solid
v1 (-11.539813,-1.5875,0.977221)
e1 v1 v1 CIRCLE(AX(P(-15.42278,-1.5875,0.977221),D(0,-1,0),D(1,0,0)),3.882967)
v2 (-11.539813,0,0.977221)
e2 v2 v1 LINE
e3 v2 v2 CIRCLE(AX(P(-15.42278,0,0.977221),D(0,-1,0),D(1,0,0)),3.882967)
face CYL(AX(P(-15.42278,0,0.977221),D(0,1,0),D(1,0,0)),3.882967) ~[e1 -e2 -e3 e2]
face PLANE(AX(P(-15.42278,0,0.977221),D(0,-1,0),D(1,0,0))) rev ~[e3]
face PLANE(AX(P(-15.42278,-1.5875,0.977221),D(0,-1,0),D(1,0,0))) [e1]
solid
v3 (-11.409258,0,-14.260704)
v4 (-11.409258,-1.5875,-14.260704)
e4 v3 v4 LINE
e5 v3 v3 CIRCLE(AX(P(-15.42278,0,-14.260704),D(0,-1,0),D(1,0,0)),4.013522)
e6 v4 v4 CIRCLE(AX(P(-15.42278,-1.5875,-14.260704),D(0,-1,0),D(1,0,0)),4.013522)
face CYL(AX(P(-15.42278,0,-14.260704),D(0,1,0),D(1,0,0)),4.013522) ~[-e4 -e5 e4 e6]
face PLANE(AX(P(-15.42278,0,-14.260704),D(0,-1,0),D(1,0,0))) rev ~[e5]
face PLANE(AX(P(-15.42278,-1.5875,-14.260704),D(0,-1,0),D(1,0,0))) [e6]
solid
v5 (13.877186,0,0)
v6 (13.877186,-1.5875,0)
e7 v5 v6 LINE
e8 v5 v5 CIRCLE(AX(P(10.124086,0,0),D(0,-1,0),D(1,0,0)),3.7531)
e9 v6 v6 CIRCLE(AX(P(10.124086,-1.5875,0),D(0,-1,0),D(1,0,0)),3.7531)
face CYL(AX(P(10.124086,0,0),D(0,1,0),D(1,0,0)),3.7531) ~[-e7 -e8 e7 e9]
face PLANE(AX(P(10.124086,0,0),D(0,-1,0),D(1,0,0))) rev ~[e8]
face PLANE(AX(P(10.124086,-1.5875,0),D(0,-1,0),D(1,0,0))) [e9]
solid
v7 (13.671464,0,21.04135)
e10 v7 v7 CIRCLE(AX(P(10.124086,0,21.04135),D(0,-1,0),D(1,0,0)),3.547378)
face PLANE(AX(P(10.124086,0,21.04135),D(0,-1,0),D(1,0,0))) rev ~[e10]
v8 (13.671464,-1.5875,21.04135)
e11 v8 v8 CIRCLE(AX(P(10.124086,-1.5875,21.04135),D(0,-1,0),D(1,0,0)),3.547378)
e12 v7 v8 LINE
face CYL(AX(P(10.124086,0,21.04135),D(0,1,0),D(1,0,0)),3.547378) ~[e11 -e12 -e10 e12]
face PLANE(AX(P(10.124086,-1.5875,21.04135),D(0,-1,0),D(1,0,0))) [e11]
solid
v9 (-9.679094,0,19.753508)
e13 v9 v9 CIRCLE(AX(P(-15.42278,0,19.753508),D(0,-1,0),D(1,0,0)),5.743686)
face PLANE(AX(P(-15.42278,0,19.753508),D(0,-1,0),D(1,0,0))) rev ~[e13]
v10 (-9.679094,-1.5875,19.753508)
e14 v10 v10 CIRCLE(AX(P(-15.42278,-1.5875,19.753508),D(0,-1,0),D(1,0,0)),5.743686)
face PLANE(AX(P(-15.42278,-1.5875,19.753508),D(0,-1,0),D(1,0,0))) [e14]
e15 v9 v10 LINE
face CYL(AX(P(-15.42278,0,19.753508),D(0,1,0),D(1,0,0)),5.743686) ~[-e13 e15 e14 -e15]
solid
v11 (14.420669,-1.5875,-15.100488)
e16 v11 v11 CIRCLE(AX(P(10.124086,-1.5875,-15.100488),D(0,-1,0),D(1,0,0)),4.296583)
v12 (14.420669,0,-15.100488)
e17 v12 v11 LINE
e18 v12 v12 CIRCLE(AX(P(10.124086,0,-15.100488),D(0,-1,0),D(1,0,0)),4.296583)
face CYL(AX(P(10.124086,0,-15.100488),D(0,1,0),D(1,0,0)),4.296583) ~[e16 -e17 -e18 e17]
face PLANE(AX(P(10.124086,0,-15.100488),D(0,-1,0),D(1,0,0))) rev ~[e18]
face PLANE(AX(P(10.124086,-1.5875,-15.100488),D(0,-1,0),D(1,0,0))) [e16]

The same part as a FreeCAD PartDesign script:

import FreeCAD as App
import Part
import Sketcher
from FreeCAD import Vector
Q = App.Units.Quantity

doc = App.newDocument("Part")
body = doc.addObject("PartDesign::Body", "Body")
body.AllowCompound = True

# Sketch on XZ plane
sketch1 = body.newObject("Sketcher::SketchObject", "Sketch")
sketch1.AttachmentSupport = (doc.getObject("XZ_Plane"), [""])
sketch1.MapMode = "FlatFace"
sketch1.addGeometry([
    Part.Circle(Vector(-15.42278, 19.753508, 0), Vector(0, 0, 1), 5.743686),  # 0
    Part.Circle(Vector(-15.42278, 0.977221, 0), Vector(0, 0, 1), 3.882967),  # 1
    Part.Circle(Vector(-15.42278, -14.260704, 0), Vector(0, 0, 1), 4.013522),  # 2
    Part.Circle(Vector(10.124086, 21.04135, 0), Vector(0, 0, 1), 3.547378),  # 3
    Part.Circle(Vector(10.124086, 0, 0), Vector(0, 0, 1), 3.7531),  # 4
    Part.Circle(Vector(10.124086, -15.100488, 0), Vector(0, 0, 1), 4.296583),  # 5
], False)
sketch1.addConstraint([
    Sketcher.Constraint("PointOnObject", 4, 3, -1),
    Sketcher.Constraint("Vertical", 0, 3, 1, 3),
    Sketcher.Constraint("Vertical", 1, 3, 2, 3),
    Sketcher.Constraint("Vertical", 3, 3, 4, 3),
    Sketcher.Constraint("Vertical", 4, 3, 5, 3),
    Sketcher.Constraint("Diameter", 4, Q("7.5062 mm")),
    Sketcher.Constraint("Diameter", 0, Q("11.487372 mm")),
    Sketcher.Constraint("Diameter", 1, Q("7.765934 mm")),
    Sketcher.Constraint("Diameter", 2, Q("8.027044 mm")),
    Sketcher.Constraint("Diameter", 3, Q("7.094756 mm")),
    Sketcher.Constraint("Diameter", 5, Q("8.593166 mm")),
    Sketcher.Constraint("DistanceX", 0, 3, -1, 1, Q("15.42278 mm")),
    Sketcher.Constraint("DistanceY", -1, 1, 0, 3, Q("19.753508 mm")),
    Sketcher.Constraint("DistanceY", -1, 1, 1, 3, Q("0.977221 mm")),
    Sketcher.Constraint("DistanceY", -1, 1, 3, 3, Q("21.04135 mm")),
    Sketcher.Constraint("DistanceY", 5, 3, 1, 3, Q("16.077709 mm")),
    Sketcher.Constraint("DistanceY", 2, 3, -1, 1, Q("14.260704 mm")),
    Sketcher.Constraint("DistanceX", -1, 1, 3, 3, Q("10.124086 mm")),
])
pad1 = body.newObject("PartDesign::Pad", "Pad")
pad1.Profile = sketch1
pad1.Length = Q("0.0625 in")

doc.recompute()
